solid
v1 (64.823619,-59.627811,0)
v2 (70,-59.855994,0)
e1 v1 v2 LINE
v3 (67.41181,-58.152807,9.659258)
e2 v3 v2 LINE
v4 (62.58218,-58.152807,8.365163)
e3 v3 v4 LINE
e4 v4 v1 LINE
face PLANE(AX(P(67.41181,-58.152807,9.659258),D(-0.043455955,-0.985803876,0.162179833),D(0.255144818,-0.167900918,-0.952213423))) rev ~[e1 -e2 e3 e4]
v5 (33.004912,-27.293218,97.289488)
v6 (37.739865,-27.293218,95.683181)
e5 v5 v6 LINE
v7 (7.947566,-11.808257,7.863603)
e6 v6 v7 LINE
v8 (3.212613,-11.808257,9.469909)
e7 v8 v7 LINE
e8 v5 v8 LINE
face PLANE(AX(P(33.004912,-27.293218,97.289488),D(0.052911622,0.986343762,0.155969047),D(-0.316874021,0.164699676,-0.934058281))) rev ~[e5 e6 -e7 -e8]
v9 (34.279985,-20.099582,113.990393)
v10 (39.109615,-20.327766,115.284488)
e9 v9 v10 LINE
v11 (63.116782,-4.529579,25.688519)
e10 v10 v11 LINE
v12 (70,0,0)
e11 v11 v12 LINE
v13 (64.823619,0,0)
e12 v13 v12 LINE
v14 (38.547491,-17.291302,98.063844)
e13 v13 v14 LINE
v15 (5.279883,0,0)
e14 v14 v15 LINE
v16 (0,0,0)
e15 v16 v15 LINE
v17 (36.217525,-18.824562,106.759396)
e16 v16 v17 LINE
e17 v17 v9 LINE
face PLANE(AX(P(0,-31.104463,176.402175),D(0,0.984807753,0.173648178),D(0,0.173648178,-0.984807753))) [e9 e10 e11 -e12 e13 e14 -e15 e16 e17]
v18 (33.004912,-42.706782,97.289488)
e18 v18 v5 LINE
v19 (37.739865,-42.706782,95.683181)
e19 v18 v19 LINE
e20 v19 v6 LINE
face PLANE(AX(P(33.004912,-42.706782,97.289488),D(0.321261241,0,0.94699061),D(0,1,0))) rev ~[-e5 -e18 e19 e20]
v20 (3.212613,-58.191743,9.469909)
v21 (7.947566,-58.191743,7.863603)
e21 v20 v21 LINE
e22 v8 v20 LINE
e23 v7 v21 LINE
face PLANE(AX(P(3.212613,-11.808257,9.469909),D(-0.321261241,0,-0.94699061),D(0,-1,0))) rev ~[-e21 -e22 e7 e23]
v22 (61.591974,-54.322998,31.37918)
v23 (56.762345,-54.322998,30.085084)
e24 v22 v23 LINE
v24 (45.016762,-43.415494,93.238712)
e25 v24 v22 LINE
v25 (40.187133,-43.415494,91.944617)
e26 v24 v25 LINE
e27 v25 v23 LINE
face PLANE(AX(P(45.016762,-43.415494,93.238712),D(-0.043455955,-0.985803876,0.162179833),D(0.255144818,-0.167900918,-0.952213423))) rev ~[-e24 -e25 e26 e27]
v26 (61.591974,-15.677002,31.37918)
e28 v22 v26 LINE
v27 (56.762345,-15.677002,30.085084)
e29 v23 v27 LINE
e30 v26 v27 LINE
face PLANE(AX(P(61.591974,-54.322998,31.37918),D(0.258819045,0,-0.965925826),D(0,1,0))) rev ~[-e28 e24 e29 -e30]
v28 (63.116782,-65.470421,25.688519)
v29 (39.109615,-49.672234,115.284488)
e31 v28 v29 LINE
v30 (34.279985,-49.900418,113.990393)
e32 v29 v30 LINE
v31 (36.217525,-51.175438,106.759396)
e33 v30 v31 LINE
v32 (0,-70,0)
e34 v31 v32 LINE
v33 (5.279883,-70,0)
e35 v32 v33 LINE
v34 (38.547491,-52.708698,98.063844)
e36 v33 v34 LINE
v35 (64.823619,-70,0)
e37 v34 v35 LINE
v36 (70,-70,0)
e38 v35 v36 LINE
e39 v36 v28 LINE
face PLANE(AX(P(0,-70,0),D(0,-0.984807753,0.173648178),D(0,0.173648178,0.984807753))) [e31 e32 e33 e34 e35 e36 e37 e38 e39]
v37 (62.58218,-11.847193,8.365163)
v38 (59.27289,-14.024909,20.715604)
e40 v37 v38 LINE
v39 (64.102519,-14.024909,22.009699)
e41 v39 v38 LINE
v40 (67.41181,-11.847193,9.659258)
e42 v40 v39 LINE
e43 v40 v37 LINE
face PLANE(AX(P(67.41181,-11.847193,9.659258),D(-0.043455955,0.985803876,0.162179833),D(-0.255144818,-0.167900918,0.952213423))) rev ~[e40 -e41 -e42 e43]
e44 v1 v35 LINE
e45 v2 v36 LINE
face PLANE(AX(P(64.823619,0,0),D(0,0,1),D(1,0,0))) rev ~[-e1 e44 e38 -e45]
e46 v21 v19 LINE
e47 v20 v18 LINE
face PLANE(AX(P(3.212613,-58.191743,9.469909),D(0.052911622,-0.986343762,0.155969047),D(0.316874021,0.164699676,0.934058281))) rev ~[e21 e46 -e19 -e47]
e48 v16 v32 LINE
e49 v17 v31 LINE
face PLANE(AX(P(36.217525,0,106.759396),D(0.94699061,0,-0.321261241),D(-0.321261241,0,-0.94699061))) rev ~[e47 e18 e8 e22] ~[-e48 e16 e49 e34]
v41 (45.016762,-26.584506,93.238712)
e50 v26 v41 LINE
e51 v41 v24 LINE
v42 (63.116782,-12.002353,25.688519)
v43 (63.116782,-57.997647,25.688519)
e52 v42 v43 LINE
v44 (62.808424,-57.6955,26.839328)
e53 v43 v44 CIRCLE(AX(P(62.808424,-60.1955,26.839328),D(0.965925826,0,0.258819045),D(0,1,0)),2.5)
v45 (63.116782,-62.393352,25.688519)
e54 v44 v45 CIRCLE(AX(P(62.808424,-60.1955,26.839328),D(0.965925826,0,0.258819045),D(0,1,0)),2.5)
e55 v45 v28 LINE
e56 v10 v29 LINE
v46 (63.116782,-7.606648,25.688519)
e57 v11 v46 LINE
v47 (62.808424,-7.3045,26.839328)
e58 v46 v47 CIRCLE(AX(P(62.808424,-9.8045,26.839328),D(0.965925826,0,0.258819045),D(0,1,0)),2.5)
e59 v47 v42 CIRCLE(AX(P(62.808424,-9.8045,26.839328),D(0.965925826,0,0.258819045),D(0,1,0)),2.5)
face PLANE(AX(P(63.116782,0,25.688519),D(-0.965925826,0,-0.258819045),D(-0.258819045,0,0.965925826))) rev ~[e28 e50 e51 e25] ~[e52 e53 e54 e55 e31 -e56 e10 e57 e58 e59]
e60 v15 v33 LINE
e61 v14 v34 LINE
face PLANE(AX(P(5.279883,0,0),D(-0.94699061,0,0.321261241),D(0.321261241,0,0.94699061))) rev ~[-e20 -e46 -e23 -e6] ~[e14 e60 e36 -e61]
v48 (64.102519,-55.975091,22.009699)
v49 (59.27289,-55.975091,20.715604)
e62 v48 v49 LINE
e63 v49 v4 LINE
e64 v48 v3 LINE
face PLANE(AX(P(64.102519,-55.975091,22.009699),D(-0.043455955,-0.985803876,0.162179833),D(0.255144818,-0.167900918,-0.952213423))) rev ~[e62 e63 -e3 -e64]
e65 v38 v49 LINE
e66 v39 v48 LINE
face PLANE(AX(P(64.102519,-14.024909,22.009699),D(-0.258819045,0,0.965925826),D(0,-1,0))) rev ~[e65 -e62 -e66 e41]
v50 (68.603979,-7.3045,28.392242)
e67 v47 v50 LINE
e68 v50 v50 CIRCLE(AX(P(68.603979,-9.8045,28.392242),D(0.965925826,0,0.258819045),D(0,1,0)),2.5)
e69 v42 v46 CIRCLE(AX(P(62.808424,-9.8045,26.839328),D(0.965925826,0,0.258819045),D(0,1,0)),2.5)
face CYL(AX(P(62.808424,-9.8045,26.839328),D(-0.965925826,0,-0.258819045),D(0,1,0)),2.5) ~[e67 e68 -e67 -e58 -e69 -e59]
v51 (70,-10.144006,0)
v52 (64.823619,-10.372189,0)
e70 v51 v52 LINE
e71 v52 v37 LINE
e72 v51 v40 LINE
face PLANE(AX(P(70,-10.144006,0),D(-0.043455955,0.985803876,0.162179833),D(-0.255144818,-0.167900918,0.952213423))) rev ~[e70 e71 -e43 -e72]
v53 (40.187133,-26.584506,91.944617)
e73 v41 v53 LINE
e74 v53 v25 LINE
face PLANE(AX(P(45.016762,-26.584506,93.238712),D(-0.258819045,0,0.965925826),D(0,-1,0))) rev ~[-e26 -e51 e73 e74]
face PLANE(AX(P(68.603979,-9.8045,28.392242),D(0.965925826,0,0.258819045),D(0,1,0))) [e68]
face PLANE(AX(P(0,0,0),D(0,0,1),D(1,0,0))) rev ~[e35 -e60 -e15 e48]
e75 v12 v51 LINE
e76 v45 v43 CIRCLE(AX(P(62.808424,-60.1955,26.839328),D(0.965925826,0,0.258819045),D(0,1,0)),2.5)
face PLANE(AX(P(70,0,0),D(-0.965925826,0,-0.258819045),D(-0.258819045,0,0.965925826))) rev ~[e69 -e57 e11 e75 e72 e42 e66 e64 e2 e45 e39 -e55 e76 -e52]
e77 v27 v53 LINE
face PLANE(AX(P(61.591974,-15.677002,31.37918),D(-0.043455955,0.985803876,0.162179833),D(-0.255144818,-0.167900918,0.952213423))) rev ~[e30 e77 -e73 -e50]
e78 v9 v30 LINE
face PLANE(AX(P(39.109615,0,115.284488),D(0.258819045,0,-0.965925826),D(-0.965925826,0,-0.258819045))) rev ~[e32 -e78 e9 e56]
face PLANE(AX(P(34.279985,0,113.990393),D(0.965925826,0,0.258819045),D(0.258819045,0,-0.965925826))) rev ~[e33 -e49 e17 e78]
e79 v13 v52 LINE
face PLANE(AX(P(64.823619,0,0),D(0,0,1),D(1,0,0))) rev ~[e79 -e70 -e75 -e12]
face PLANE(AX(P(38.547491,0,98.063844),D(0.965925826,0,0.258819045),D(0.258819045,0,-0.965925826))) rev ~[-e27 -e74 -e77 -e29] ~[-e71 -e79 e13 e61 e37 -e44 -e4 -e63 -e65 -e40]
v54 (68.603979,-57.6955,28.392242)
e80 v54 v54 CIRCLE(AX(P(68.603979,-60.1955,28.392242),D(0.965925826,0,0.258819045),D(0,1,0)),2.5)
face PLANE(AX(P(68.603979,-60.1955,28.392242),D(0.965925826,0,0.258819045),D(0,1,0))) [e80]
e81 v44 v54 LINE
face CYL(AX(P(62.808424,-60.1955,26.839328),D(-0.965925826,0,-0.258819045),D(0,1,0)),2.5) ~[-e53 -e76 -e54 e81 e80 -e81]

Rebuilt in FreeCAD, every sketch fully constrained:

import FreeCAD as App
import Part
import Sketcher

V = App.Vector
Q = App.Units.Quantity


def add_polygon(sketch, points):
    """Adds a closed chain of lines whose ends are joined by coincident constraints."""
    first, n = sketch.GeometryCount, len(points)
    for a, b in zip(points, points[1:] + points[:1]):
        sketch.addGeometry(Part.LineSegment(App.Vector(*a, 0), App.Vector(*b, 0)), False)
    for i in range(n):
        sketch.addConstraint(Sketcher.Constraint("Coincident", first + i, 2, first + (i + 1) % n, 1))

doc = App.newDocument("Part")
body = doc.addObject("PartDesign::Body", "Body")

sketch1 = body.newObject("Sketcher::SketchObject", "Sketch")
sketch1.AttachmentSupport = (doc.getObject("XZ_Plane"), [""])
sketch1.MapMode = "FlatFace"
add_polygon(sketch1, [(65, 0), (70, 0), (63, 26), (39, 115), (34, 114), (36, 107), (0, 0), (5, 0), (39, 98)])
sketch1.addConstraint([
    Sketcher.Constraint("Horizontal", 0),
    Sketcher.Constraint("Horizontal", 6),
    Sketcher.Constraint("Coincident", 5, 2, -1, 1),
    Sketcher.Constraint("PointOnObject", 0, 2, -1),
    Sketcher.Constraint("Parallel", 1, 2),
    Sketcher.Constraint("Perpendicular", 2, 3),
    Sketcher.Constraint("Perpendicular", 3, 4),
    Sketcher.Constraint("Parallel", 5, 7),
    Sketcher.Constraint("Parallel", 4, 8),
    Sketcher.Constraint("Angle", 1, Q("105 deg")),
    Sketcher.Constraint("Distance", 3, 5.0),
    Sketcher.Constraint("DistanceX", -1, 1, 0, 2, 70.0),
    Sketcher.Constraint("DistanceX", 0, 1, 0, 2, 5.176381),
    Sketcher.Constraint("DistanceX", 6, 2, 1, 2, 57.836899),
    Sketcher.Constraint("DistanceX", 6, 2, 3, 2, 29.000102),
    Sketcher.Constraint("Distance", 1, 26.594712),
    Sketcher.Constraint("Distance", 4, 7.486078),
])
pad1 = body.newObject("PartDesign::Pad", "Pad")
pad1.Profile = sketch1
pad1.Length = 70

sketch2 = body.newObject("Sketcher::SketchObject", "Sketch001")
sketch2.AttachmentSupport = (doc.getObject("YZ_Plane"), [""])
sketch2.MapMode = "FlatFace"
add_polygon(sketch2, [(-31, 176), (0, 0), (48, -5), (66, 203)])
add_polygon(sketch2, [(-112, -13), (-70, 0), (-39, 176), (-112, 176)])
sketch2.addConstraint([
    Sketcher.Constraint("Horizontal", 6),
    Sketcher.Constraint("Vertical", 7),
    Sketcher.Constraint("Coincident", 0, 2, -1, 1),
    Sketcher.Constraint("PointOnObject", 4, 2, -1),
    Sketcher.Constraint("Horizontal", 3, 2, 5, 2),
    Sketcher.Constraint("Equal", 0, 5),
    Sketcher.Constraint("Angle", 0, Q("-80 deg")),
    Sketcher.Constraint("DistanceX", 4, 2, -1, 1, 70.0),
    Sketcher.Constraint("Distance", 1, 48.71174),
    Sketcher.Constraint("Distance", 4, 43.525629),
    Sketcher.Constraint("DistanceX", 6, 2, 6, 1, 72.651322),
    Sketcher.Constraint("DistanceY", 7, 2, 7, 1, 189.376722),
    Sketcher.Constraint("DistanceY", 1, 2, -1, 1, 5.185169),
    Sketcher.Constraint("DistanceX", -1, 1, 2, 2, 65.811291),
    Sketcher.Constraint("Distance", 2, 209.238416),
])
pocket1 = body.newObject("PartDesign::Pocket", "Pocket")
pocket1.Profile = sketch2
pocket1.Type = "ThroughAll"
pocket1.Reversed = True

sketch3 = body.newObject("Sketcher::SketchObject", "Sketch002")
sketch3.Placement = App.Placement(V(0, 0, 0), App.Rotation(V(0, -1, 0), V(0.321261241, 0, 0.94699061), V(-0.94699061, 0, 0.321261241), "ZXY"))
add_polygon(sketch3, [(58, 10), (43, 103), (27, 103), (12, 10)])
sketch3.addConstraint([
    Sketcher.Constraint("Horizontal", 1),
    Sketcher.Constraint("Horizontal", 3),
    Sketcher.Constraint("Equal", 0, 2),
    Sketcher.Constraint("Distance", 0, 94.019378),
    Sketcher.Constraint("DistanceX", 1, 2, 1, 1, 15.413565),
    Sketcher.Constraint("DistanceX", 3, 1, 3, 2, 46.383487),
    Sketcher.Constraint("DistanceY", -1, 1, 0, 2, 102.73543),
    Sketcher.Constraint("DistanceX", -1, 1, 0, 2, 42.706782),
])
pocket2 = body.newObject("PartDesign::Pocket", "Pocket001")
pocket2.Profile = sketch3
pocket2.Length = 5

sketch4 = body.newObject("Sketcher::SketchObject", "Sketch003")
sketch4.Placement = App.Placement(V(65.310889, 0, 17.5), App.Rotation(V(0, 1, 0), V(-0.258819045, 0, 0.965925826), V(0.965925826, 0, 0.258819045), "ZXY"))
add_polygon(sketch4, [(-10, -18), (-12, -8), (-14, 5), (-56, 5), (-58, -8), (-60, -18)])
add_polygon(sketch4, [(-27, 78), (-43, 78), (-54, 14), (-16, 14)])
sketch4.addConstraint([
    Sketcher.Constraint("Horizontal", 2),
    Sketcher.Constraint("Horizontal", 5),
    Sketcher.Constraint("Horizontal", 6),
    Sketcher.Constraint("Horizontal", 8),
    Sketcher.Constraint("Parallel", 0, 1),
    Sketcher.Constraint("Parallel", 3, 4),
    Sketcher.Constraint("Parallel", 4, 7),
    Sketcher.Constraint("Parallel", 1, 9),
    Sketcher.Constraint("Horizontal", 0, 2, 3, 2),
    Sketcher.Constraint("Equal", 1, 3),
    Sketcher.Constraint("DistanceY", 4, 2, 3, 2, 10.0),
    Sketcher.Constraint("DistanceY", 2, 2, 7, 2, 9.7),
    Sketcher.Constraint("DistanceX", 7, 2, -1, 1, 54.322998),
    Sketcher.Constraint("DistanceX", 8, 2, -1, 1, 15.677002),
    Sketcher.Constraint("DistanceX", 2, 2, 2, 1, 41.950181),
    Sketcher.Constraint("DistanceX", 5, 1, 5, 2, 49.711989),
    Sketcher.Constraint("DistanceX", 4, 2, 0, 2, 48.008801),
    Sketcher.Constraint("DistanceY", 2, 2, 6, 2, 73.741701),
    Sketcher.Constraint("DistanceX", 6, 2, 0, 2, 31.5683),
    Sketcher.Constraint("DistanceY", 0, 2, -1, 1, 8.117333),
])
pocket3 = body.newObject("PartDesign::Pocket", "Pocket002")
pocket3.Profile = sketch4
pocket3.Length = 5

sketch5 = body.newObject("Sketcher::SketchObject", "Sketch004")
sketch5.Placement = App.Placement(V(65.310889, 0, 17.5), App.Rotation(V(0, 1, 0), V(-0.258819045, 0, 0.965925826), V(0.965925826, 0, 0.258819045), "ZXY"))
sketch5.addGeometry([
    Part.Circle(V(-60.2, 9.7, 0), V(0, 0, 1), 2.5),
    Part.Circle(V(-9.8, 9.7, 0), V(0, 0, 1), 2.5),
], False)
sketch5.addConstraint([
    Sketcher.Constraint("Equal", 0, 1),
    Sketcher.Constraint("Horizontal", 0, 3, 1, 3),
    Sketcher.Constraint("Diameter", 0, 5.0),
    Sketcher.Constraint("DistanceX", 0, 3, 1, 3, 50.390999),
    Sketcher.Constraint("DistanceX", 0, 3, -1, 1, 60.1955),
    Sketcher.Constraint("DistanceY", -1, 1, 0, 3, 9.668784),
])
pad2 = body.newObject("PartDesign::Pad", "Pad001")
pad2.Profile = sketch5
pad2.Length = 6

doc.recompute()
